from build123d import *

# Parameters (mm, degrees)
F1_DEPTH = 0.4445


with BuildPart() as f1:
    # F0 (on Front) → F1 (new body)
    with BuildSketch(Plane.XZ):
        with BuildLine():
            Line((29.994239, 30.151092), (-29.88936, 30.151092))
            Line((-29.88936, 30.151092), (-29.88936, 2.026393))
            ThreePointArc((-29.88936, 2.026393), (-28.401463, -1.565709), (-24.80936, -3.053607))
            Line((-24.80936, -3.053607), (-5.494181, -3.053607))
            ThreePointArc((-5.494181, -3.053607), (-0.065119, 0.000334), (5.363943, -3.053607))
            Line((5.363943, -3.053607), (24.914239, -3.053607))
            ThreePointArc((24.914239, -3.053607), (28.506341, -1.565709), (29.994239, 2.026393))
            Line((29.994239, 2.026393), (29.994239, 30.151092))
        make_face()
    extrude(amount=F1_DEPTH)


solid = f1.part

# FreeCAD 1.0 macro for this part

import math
import FreeCAD as App
import Part
import Sketcher
from FreeCAD import Vector
Q = App.Units.Quantity

doc = App.newDocument("Part")
body = doc.addObject("PartDesign::Body", "Body")

# Sketch on XZ plane
sketch1 = body.newObject("Sketcher::SketchObject", "Sketch")
sketch1.AttachmentSupport = (doc.getObject("XZ_Plane"), [""])
sketch1.MapMode = "FlatFace"
sketch1.addGeometry(Part.LineSegment(Vector(30, 30, 0), Vector(-30, 30, 0)), False)
sketch1.addGeometry(Part.LineSegment(Vector(-30, 30, 0), Vector(-30, 2, 0)), False)
sketch1.addGeometry(Part.ArcOfCircle(Part.Circle(Vector(-25, 2, 0), Vector(0, 0, 1), 5), math.radians(180), math.radians(270)), False)
sketch1.addGeometry(Part.LineSegment(Vector(-25, -3, 0), Vector(-5, -3, 0)), False)
sketch1.addGeometry(Part.ArcOfCircle(Part.Circle(Vector(0, -6, 0), Vector(0, 0, 1), 6), math.radians(31), math.radians(149)), False)
sketch1.addGeometry(Part.LineSegment(Vector(5, -3, 0), Vector(25, -3, 0)), False)
sketch1.addGeometry(Part.ArcOfCircle(Part.Circle(Vector(25, 2, 0), Vector(0, 0, 1), 5), math.radians(-90), math.radians(0)), False)
sketch1.addGeometry(Part.LineSegment(Vector(30, 2, 0), Vector(30, 30, 0)), False)
sketch1.addConstraint(Sketcher.Constraint("Coincident", 0, 2, 1, 1))
sketch1.addConstraint(Sketcher.Constraint("Tangent", 1, 2, 2, 1))
sketch1.addConstraint(Sketcher.Constraint("Tangent", 2, 2, 3, 1))
sketch1.addConstraint(Sketcher.Constraint("Coincident", 3, 2, 4, 2))
sketch1.addConstraint(Sketcher.Constraint("Coincident", 4, 1, 5, 1))
sketch1.addConstraint(Sketcher.Constraint("Tangent", 5, 2, 6, 1))
sketch1.addConstraint(Sketcher.Constraint("Tangent", 6, 2, 7, 1))
sketch1.addConstraint(Sketcher.Constraint("Coincident", 7, 2, 0, 1))
sketch1.addConstraint(Sketcher.Constraint("Horizontal", 0))
sketch1.addConstraint(Sketcher.Constraint("Vertical", 1))
sketch1.addConstraint(Sketcher.Constraint("Horizontal", 3))
sketch1.addConstraint(Sketcher.Constraint("Horizontal", 5))
sketch1.addConstraint(Sketcher.Constraint("Vertical", 7))
sketch1.addConstraint(Sketcher.Constraint("Equal", 2, 6))
sketch1.addConstraint(Sketcher.Constraint("Horizontal", 2, 3, 6, 3))
sketch1.addConstraint(Sketcher.Constraint("Radius", 2, Q("0.2 in")))
sketch1.addConstraint(Sketcher.Constraint("DistanceX", 0, 2, 0, 1, Q("59.883599 mm")))
sketch1.addConstraint(Sketcher.Constraint("DistanceY", 1, 2, 1, 1, Q("28.124699 mm")))
sketch1.addConstraint(Sketcher.Constraint("Radius", 4, Q("6.352655 mm")))
sketch1.addConstraint(Sketcher.Constraint("DistanceX", 3, 1, 3, 2, Q("19.315179 mm")))
sketch1.addConstraint(Sketcher.Constraint("DistanceX", 5, 1, 5, 2, Q("19.550296 mm")))
sketch1.addConstraint(Sketcher.Constraint("DistanceX", 2, 3, -1, 1, Q("24.80936 mm")))
sketch1.addConstraint(Sketcher.Constraint("DistanceY", 4, 3, -1, 1, Q("6.352321 mm")))
pad1 = body.newObject("PartDesign::Pad", "Pad")
pad1.Profile = sketch1
pad1.Length = Q("0.0175 in")

doc.recompute()
